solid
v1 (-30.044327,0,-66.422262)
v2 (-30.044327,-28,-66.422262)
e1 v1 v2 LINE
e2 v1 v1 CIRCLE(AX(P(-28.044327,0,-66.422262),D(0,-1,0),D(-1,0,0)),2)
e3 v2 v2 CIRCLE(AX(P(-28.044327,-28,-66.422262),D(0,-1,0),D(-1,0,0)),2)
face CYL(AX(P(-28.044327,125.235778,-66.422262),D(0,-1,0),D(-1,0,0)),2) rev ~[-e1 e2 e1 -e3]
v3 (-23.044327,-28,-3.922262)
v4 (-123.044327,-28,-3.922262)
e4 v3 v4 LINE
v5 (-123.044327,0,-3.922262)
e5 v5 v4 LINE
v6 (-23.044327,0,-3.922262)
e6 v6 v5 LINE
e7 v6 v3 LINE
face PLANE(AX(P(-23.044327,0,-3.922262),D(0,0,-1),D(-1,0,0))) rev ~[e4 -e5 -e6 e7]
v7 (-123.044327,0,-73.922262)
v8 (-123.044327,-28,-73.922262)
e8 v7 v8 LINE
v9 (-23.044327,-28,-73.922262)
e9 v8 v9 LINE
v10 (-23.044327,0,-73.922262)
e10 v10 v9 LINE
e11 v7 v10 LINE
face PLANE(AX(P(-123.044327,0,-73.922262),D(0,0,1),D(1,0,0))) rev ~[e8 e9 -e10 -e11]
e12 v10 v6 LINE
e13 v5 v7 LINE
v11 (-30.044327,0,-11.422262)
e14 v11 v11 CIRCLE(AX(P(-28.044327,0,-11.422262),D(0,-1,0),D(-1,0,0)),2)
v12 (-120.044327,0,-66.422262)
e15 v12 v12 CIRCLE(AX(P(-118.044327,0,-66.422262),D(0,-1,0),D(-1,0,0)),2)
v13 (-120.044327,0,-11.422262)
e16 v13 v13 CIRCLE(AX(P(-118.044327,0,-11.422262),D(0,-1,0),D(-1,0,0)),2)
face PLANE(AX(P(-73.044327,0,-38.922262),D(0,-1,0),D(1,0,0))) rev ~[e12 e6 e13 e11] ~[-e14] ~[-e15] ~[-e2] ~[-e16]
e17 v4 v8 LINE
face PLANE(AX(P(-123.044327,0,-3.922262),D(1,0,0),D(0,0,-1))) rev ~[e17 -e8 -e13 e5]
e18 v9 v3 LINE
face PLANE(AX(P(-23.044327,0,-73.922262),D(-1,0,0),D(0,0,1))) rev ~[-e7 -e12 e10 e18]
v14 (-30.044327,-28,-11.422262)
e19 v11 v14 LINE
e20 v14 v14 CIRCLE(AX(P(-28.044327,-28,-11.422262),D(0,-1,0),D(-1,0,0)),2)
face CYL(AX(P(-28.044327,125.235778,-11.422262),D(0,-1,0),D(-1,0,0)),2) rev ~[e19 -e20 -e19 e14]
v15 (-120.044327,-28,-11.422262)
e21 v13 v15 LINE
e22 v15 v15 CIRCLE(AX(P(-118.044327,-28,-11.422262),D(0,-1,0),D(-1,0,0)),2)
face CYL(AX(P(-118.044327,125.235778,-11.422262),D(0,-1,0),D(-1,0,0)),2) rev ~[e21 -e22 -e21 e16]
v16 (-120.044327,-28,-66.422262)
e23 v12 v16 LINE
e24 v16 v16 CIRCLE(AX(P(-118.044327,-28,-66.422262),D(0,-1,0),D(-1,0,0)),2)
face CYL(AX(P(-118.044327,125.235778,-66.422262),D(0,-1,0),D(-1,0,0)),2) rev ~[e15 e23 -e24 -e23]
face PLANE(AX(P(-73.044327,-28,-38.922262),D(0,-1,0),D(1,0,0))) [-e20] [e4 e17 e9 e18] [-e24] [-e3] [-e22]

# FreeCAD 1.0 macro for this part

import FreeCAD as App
import Part
import Sketcher

V = App.Vector
Q = App.Units.Quantity


def add_polygon(sketch, points):
    """Adds a closed chain of lines whose ends are joined by coincident constraints."""
    first, n = sketch.GeometryCount, len(points)
    for a, b in zip(points, points[1:] + points[:1]):
        sketch.addGeometry(Part.LineSegment(App.Vector(*a, 0), App.Vector(*b, 0)), False)
    for i in range(n):
        sketch.addConstraint(Sketcher.Constraint("Coincident", first + i, 2, first + (i + 1) % n, 1))

doc = App.newDocument("Part")
body = doc.addObject("PartDesign::Body", "Body")

sketch1 = body.newObject("Sketcher::SketchObject", "Sketch")
sketch1.AttachmentSupport = (doc.getObject("XZ_Plane"), [""])
sketch1.MapMode = "FlatFace"
add_polygon(sketch1, [(-23, -4), (-123, -4), (-123, -74), (-23, -74)])
sketch1.addConstraint([
    Sketcher.Constraint("Horizontal", 0),
    Sketcher.Constraint("Vertical", 1),
    Sketcher.Constraint("Horizontal", 2),
    Sketcher.Constraint("Vertical", 3),
    Sketcher.Constraint("DistanceX", 0, 2, 0, 1, Q("100 mm")),
    Sketcher.Constraint("DistanceY", 1, 2, 1, 1, Q("70 mm")),
    Sketcher.Constraint("DistanceY", 0, 2, -1, 1, Q("3.922262 mm")),
    Sketcher.Constraint("DistanceX", 0, 2, -1, 1, Q("123.044327 mm")),
])
pad1 = body.newObject("PartDesign::Pad", "Pad")
pad1.Profile = sketch1
pad1.Length = 28

sketch2 = body.newObject("Sketcher::SketchObject", "Sketch001")
sketch2.AttachmentSupport = (doc.getObject("XZ_Plane"), [""])
sketch2.MapMode = "FlatFace"
sketch2.addGeometry([
    Part.Circle(V(-118, -11.4, 0), V(0, 0, 1), 2),
    Part.Circle(V(-28, -11.4, 0), V(0, 0, 1), 2),
    Part.Circle(V(-118, -66.4, 0), V(0, 0, 1), 2),
    Part.Circle(V(-28, -66.4, 0), V(0, 0, 1), 2),
], False)
sketch2.addConstraint([
    Sketcher.Constraint("Equal", 0, 1),
    Sketcher.Constraint("Equal", 1, 2),
    Sketcher.Constraint("Equal", 2, 3),
    Sketcher.Constraint("Horizontal", 0, 3, 1, 3),
    Sketcher.Constraint("Horizontal", 2, 3, 3, 3),
    Sketcher.Constraint("Vertical", 0, 3, 2, 3),
    Sketcher.Constraint("Vertical", 1, 3, 3, 3),
    Sketcher.Constraint("Diameter", 0, Q("4 mm")),
    Sketcher.Constraint("DistanceX", 0, 3, 1, 3, Q("90 mm")),
    Sketcher.Constraint("DistanceY", 2, 3, 0, 3, Q("55 mm")),
    Sketcher.Constraint("DistanceY", 0, 3, -1, 1, Q("11.422262 mm")),
    Sketcher.Constraint("DistanceX", 0, 3, -1, 1, Q("118.044327 mm")),
])
doc.recompute()
hole = body.newObject("PartDesign::Hole", "Hole")
hole.Profile = sketch2
hole.ThreadType = "None"
hole.Diameter = 4
hole.DepthType = "ThroughAll"
hole.Reversed = True

doc.recompute()
